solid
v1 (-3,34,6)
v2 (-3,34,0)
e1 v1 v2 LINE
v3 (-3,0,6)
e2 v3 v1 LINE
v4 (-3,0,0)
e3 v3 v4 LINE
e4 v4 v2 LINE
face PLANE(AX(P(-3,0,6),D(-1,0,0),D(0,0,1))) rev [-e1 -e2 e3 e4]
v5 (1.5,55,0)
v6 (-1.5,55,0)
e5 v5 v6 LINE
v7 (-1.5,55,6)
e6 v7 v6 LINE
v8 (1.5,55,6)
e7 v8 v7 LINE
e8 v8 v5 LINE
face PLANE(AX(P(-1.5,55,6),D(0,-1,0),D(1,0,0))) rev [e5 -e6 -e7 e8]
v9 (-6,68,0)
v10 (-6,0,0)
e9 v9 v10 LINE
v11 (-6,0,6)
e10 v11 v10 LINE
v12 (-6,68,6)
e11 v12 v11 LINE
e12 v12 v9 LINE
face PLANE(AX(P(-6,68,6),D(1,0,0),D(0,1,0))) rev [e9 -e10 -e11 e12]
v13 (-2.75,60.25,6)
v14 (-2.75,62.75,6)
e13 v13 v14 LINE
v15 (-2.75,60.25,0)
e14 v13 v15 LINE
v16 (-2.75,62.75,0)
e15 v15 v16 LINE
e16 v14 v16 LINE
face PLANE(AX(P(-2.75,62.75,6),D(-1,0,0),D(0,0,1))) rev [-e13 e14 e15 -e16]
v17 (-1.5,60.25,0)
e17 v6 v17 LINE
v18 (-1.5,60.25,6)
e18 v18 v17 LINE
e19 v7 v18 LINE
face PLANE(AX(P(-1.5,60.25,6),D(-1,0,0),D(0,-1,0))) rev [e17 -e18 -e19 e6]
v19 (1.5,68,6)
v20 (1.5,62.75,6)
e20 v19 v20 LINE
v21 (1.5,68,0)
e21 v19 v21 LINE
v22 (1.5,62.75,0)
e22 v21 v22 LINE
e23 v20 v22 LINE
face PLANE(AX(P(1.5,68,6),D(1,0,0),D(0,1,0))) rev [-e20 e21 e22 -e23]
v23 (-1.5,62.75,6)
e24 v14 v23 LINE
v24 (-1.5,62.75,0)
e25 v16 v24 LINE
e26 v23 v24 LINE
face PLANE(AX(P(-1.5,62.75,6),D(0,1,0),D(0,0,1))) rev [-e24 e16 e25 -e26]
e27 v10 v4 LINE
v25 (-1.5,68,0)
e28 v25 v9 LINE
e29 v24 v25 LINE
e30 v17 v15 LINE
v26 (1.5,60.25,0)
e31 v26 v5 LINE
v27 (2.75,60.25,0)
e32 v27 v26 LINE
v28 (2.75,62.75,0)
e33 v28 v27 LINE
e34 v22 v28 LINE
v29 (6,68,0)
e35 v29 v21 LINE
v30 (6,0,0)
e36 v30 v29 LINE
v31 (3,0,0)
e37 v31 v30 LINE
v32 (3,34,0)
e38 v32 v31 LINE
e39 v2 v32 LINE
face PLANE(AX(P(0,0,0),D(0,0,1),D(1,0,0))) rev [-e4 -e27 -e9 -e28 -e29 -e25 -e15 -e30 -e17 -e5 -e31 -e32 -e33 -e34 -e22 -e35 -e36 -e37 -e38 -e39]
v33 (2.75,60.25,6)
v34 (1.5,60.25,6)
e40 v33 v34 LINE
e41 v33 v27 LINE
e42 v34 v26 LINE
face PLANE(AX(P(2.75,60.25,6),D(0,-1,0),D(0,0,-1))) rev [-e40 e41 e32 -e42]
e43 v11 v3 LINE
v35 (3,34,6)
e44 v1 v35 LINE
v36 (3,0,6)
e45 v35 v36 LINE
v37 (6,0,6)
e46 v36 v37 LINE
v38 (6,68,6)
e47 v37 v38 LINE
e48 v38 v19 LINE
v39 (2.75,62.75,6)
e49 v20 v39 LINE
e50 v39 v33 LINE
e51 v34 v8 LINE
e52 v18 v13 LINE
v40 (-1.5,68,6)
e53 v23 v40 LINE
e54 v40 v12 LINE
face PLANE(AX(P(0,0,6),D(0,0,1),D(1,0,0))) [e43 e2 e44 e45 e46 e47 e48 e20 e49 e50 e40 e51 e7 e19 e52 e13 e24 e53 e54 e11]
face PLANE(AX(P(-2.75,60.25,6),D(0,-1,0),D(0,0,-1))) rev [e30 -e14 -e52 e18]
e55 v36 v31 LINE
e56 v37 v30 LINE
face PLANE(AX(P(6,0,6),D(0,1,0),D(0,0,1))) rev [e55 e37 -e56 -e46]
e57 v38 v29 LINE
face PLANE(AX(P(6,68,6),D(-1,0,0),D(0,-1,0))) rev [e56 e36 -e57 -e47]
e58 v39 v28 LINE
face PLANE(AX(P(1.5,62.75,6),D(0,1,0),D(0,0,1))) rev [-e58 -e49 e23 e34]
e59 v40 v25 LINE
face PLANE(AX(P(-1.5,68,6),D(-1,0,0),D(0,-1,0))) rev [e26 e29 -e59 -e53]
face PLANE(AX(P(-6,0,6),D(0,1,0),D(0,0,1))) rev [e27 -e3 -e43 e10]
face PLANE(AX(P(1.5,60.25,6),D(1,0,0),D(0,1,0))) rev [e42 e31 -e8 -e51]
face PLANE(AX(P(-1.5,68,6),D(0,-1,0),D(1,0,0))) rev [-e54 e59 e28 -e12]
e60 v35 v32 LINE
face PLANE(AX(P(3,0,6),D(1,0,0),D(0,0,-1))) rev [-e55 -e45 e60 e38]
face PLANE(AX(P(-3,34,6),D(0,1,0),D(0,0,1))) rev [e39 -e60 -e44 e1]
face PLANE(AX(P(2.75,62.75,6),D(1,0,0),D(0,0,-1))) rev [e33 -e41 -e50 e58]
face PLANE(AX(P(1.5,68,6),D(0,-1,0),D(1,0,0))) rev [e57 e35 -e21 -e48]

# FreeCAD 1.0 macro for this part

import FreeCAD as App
import Part
import Sketcher
Q = App.Units.Quantity

doc = App.newDocument("Part")
body = doc.addObject("PartDesign::Body", "Body")

sketch1 = body.newObject("Sketcher::SketchObject", "Sketch")
sketch1.AttachmentSupport = (doc.getObject("XY_Plane"), [""])
sketch1.MapMode = "FlatFace"
sketch1.addGeometry([
    Part.LineSegment(App.Vector(-1.5, 62.8, 0), App.Vector(-1.5, 68, 0)),
    Part.LineSegment(App.Vector(-1.5, 68, 0), App.Vector(-6, 68, 0)),
    Part.LineSegment(App.Vector(-6, 68, 0), App.Vector(-6, 0, 0)),
    Part.LineSegment(App.Vector(-6, 0, 0), App.Vector(-3, 0, 0)),
    Part.LineSegment(App.Vector(-3, 0, 0), App.Vector(-3, 34, 0)),
    Part.LineSegment(App.Vector(-3, 34, 0), App.Vector(3, 34, 0)),
    Part.LineSegment(App.Vector(3, 34, 0), App.Vector(3, 0, 0)),
    Part.LineSegment(App.Vector(3, 0, 0), App.Vector(6, 0, 0)),
    Part.LineSegment(App.Vector(6, 0, 0), App.Vector(6, 68, 0)),
    Part.LineSegment(App.Vector(6, 68, 0), App.Vector(1.5, 68, 0)),
    Part.LineSegment(App.Vector(1.5, 68, 0), App.Vector(1.5, 62.8, 0)),
    Part.LineSegment(App.Vector(1.5, 62.8, 0), App.Vector(2.8, 62.8, 0)),
    Part.LineSegment(App.Vector(2.8, 62.8, 0), App.Vector(2.8, 60.2, 0)),
    Part.LineSegment(App.Vector(2.8, 60.2, 0), App.Vector(1.5, 60.2, 0)),
    Part.LineSegment(App.Vector(1.5, 60.2, 0), App.Vector(1.5, 55, 0)),
    Part.LineSegment(App.Vector(1.5, 55, 0), App.Vector(-1.5, 55, 0)),
    Part.LineSegment(App.Vector(-1.5, 55, 0), App.Vector(-1.5, 60.2, 0)),
    Part.LineSegment(App.Vector(-1.5, 60.2, 0), App.Vector(-2.8, 60.2, 0)),
    Part.LineSegment(App.Vector(-2.8, 60.2, 0), App.Vector(-2.8, 62.8, 0)),
    Part.LineSegment(App.Vector(-2.8, 62.8, 0), App.Vector(-1.5, 62.8, 0)),
], False)
sketch1.addConstraint([
    Sketcher.Constraint("Coincident", 0, 2, 1, 1),
    Sketcher.Constraint("Coincident", 1, 2, 2, 1),
    Sketcher.Constraint("Coincident", 2, 2, 3, 1),
    Sketcher.Constraint("Coincident", 3, 2, 4, 1),
    Sketcher.Constraint("Coincident", 4, 2, 5, 1),
    Sketcher.Constraint("Coincident", 5, 2, 6, 1),
    Sketcher.Constraint("Coincident", 6, 2, 7, 1),
    Sketcher.Constraint("Coincident", 7, 2, 8, 1),
    Sketcher.Constraint("Coincident", 8, 2, 9, 1),
    Sketcher.Constraint("Coincident", 9, 2, 10, 1),
    Sketcher.Constraint("Coincident", 10, 2, 11, 1),
    Sketcher.Constraint("Coincident", 11, 2, 12, 1),
    Sketcher.Constraint("Coincident", 12, 2, 13, 1),
    Sketcher.Constraint("Coincident", 13, 2, 14, 1),
    Sketcher.Constraint("Coincident", 14, 2, 15, 1),
    Sketcher.Constraint("Coincident", 15, 2, 16, 1),
    Sketcher.Constraint("Coincident", 16, 2, 17, 1),
    Sketcher.Constraint("Coincident", 17, 2, 18, 1),
    Sketcher.Constraint("Coincident", 18, 2, 19, 1),
    Sketcher.Constraint("Coincident", 19, 2, 0, 1),
    Sketcher.Constraint("Vertical", 0),
    Sketcher.Constraint("Horizontal", 1),
    Sketcher.Constraint("Vertical", 2),
    Sketcher.Constraint("Horizontal", 3),
    Sketcher.Constraint("Vertical", 4),
    Sketcher.Constraint("Horizontal", 5),
    Sketcher.Constraint("Vertical", 6),
    Sketcher.Constraint("Horizontal", 7),
    Sketcher.Constraint("Vertical", 8),
    Sketcher.Constraint("Horizontal", 9),
    Sketcher.Constraint("Vertical", 10),
    Sketcher.Constraint("Horizontal", 11),
    Sketcher.Constraint("Vertical", 12),
    Sketcher.Constraint("Horizontal", 13),
    Sketcher.Constraint("Vertical", 14),
    Sketcher.Constraint("Horizontal", 15),
    Sketcher.Constraint("Vertical", 16),
    Sketcher.Constraint("Horizontal", 17),
    Sketcher.Constraint("Vertical", 18),
    Sketcher.Constraint("Horizontal", 19),
    Sketcher.Constraint("Symmetric", 3, 2, 6, 2, -1, 1),
    Sketcher.Constraint("Symmetric", 2, 2, 7, 2, -2),
    Sketcher.Constraint("Symmetric", 0, 2, 9, 2, -2),
    Sketcher.Constraint("Symmetric", 13, 2, 16, 2, -2),
    Sketcher.Constraint("Symmetric", 11, 2, 18, 2, -2),
    Sketcher.Constraint("Vertical", 10, 2, 13, 2),
    Sketcher.Constraint("Equal", 7, 15),
    Sketcher.Constraint("Equal", 10, 14),
    Sketcher.Constraint("DistanceX", 3, 1, 3, 2, Q("3 mm")),
    Sketcher.Constraint("DistanceX", 5, 1, 5, 2, Q("6 mm")),
    Sketcher.Constraint("DistanceY", 2, 2, 2, 1, Q("68 mm")),
    Sketcher.Constraint("DistanceY", 4, 1, 4, 2, Q("34 mm")),
    Sketcher.Constraint("DistanceY", 12, 2, 12, 1, Q("2.5 mm")),
    Sketcher.Constraint("DistanceY", -1, 1, 14, 2, Q("55 mm")),
    Sketcher.Constraint("DistanceX", 11, 1, 11, 2, Q("1.25 mm")),
])
pad1 = body.newObject("PartDesign::Pad", "Pad")
pad1.Profile = sketch1
pad1.Length = 6

doc.recompute()
